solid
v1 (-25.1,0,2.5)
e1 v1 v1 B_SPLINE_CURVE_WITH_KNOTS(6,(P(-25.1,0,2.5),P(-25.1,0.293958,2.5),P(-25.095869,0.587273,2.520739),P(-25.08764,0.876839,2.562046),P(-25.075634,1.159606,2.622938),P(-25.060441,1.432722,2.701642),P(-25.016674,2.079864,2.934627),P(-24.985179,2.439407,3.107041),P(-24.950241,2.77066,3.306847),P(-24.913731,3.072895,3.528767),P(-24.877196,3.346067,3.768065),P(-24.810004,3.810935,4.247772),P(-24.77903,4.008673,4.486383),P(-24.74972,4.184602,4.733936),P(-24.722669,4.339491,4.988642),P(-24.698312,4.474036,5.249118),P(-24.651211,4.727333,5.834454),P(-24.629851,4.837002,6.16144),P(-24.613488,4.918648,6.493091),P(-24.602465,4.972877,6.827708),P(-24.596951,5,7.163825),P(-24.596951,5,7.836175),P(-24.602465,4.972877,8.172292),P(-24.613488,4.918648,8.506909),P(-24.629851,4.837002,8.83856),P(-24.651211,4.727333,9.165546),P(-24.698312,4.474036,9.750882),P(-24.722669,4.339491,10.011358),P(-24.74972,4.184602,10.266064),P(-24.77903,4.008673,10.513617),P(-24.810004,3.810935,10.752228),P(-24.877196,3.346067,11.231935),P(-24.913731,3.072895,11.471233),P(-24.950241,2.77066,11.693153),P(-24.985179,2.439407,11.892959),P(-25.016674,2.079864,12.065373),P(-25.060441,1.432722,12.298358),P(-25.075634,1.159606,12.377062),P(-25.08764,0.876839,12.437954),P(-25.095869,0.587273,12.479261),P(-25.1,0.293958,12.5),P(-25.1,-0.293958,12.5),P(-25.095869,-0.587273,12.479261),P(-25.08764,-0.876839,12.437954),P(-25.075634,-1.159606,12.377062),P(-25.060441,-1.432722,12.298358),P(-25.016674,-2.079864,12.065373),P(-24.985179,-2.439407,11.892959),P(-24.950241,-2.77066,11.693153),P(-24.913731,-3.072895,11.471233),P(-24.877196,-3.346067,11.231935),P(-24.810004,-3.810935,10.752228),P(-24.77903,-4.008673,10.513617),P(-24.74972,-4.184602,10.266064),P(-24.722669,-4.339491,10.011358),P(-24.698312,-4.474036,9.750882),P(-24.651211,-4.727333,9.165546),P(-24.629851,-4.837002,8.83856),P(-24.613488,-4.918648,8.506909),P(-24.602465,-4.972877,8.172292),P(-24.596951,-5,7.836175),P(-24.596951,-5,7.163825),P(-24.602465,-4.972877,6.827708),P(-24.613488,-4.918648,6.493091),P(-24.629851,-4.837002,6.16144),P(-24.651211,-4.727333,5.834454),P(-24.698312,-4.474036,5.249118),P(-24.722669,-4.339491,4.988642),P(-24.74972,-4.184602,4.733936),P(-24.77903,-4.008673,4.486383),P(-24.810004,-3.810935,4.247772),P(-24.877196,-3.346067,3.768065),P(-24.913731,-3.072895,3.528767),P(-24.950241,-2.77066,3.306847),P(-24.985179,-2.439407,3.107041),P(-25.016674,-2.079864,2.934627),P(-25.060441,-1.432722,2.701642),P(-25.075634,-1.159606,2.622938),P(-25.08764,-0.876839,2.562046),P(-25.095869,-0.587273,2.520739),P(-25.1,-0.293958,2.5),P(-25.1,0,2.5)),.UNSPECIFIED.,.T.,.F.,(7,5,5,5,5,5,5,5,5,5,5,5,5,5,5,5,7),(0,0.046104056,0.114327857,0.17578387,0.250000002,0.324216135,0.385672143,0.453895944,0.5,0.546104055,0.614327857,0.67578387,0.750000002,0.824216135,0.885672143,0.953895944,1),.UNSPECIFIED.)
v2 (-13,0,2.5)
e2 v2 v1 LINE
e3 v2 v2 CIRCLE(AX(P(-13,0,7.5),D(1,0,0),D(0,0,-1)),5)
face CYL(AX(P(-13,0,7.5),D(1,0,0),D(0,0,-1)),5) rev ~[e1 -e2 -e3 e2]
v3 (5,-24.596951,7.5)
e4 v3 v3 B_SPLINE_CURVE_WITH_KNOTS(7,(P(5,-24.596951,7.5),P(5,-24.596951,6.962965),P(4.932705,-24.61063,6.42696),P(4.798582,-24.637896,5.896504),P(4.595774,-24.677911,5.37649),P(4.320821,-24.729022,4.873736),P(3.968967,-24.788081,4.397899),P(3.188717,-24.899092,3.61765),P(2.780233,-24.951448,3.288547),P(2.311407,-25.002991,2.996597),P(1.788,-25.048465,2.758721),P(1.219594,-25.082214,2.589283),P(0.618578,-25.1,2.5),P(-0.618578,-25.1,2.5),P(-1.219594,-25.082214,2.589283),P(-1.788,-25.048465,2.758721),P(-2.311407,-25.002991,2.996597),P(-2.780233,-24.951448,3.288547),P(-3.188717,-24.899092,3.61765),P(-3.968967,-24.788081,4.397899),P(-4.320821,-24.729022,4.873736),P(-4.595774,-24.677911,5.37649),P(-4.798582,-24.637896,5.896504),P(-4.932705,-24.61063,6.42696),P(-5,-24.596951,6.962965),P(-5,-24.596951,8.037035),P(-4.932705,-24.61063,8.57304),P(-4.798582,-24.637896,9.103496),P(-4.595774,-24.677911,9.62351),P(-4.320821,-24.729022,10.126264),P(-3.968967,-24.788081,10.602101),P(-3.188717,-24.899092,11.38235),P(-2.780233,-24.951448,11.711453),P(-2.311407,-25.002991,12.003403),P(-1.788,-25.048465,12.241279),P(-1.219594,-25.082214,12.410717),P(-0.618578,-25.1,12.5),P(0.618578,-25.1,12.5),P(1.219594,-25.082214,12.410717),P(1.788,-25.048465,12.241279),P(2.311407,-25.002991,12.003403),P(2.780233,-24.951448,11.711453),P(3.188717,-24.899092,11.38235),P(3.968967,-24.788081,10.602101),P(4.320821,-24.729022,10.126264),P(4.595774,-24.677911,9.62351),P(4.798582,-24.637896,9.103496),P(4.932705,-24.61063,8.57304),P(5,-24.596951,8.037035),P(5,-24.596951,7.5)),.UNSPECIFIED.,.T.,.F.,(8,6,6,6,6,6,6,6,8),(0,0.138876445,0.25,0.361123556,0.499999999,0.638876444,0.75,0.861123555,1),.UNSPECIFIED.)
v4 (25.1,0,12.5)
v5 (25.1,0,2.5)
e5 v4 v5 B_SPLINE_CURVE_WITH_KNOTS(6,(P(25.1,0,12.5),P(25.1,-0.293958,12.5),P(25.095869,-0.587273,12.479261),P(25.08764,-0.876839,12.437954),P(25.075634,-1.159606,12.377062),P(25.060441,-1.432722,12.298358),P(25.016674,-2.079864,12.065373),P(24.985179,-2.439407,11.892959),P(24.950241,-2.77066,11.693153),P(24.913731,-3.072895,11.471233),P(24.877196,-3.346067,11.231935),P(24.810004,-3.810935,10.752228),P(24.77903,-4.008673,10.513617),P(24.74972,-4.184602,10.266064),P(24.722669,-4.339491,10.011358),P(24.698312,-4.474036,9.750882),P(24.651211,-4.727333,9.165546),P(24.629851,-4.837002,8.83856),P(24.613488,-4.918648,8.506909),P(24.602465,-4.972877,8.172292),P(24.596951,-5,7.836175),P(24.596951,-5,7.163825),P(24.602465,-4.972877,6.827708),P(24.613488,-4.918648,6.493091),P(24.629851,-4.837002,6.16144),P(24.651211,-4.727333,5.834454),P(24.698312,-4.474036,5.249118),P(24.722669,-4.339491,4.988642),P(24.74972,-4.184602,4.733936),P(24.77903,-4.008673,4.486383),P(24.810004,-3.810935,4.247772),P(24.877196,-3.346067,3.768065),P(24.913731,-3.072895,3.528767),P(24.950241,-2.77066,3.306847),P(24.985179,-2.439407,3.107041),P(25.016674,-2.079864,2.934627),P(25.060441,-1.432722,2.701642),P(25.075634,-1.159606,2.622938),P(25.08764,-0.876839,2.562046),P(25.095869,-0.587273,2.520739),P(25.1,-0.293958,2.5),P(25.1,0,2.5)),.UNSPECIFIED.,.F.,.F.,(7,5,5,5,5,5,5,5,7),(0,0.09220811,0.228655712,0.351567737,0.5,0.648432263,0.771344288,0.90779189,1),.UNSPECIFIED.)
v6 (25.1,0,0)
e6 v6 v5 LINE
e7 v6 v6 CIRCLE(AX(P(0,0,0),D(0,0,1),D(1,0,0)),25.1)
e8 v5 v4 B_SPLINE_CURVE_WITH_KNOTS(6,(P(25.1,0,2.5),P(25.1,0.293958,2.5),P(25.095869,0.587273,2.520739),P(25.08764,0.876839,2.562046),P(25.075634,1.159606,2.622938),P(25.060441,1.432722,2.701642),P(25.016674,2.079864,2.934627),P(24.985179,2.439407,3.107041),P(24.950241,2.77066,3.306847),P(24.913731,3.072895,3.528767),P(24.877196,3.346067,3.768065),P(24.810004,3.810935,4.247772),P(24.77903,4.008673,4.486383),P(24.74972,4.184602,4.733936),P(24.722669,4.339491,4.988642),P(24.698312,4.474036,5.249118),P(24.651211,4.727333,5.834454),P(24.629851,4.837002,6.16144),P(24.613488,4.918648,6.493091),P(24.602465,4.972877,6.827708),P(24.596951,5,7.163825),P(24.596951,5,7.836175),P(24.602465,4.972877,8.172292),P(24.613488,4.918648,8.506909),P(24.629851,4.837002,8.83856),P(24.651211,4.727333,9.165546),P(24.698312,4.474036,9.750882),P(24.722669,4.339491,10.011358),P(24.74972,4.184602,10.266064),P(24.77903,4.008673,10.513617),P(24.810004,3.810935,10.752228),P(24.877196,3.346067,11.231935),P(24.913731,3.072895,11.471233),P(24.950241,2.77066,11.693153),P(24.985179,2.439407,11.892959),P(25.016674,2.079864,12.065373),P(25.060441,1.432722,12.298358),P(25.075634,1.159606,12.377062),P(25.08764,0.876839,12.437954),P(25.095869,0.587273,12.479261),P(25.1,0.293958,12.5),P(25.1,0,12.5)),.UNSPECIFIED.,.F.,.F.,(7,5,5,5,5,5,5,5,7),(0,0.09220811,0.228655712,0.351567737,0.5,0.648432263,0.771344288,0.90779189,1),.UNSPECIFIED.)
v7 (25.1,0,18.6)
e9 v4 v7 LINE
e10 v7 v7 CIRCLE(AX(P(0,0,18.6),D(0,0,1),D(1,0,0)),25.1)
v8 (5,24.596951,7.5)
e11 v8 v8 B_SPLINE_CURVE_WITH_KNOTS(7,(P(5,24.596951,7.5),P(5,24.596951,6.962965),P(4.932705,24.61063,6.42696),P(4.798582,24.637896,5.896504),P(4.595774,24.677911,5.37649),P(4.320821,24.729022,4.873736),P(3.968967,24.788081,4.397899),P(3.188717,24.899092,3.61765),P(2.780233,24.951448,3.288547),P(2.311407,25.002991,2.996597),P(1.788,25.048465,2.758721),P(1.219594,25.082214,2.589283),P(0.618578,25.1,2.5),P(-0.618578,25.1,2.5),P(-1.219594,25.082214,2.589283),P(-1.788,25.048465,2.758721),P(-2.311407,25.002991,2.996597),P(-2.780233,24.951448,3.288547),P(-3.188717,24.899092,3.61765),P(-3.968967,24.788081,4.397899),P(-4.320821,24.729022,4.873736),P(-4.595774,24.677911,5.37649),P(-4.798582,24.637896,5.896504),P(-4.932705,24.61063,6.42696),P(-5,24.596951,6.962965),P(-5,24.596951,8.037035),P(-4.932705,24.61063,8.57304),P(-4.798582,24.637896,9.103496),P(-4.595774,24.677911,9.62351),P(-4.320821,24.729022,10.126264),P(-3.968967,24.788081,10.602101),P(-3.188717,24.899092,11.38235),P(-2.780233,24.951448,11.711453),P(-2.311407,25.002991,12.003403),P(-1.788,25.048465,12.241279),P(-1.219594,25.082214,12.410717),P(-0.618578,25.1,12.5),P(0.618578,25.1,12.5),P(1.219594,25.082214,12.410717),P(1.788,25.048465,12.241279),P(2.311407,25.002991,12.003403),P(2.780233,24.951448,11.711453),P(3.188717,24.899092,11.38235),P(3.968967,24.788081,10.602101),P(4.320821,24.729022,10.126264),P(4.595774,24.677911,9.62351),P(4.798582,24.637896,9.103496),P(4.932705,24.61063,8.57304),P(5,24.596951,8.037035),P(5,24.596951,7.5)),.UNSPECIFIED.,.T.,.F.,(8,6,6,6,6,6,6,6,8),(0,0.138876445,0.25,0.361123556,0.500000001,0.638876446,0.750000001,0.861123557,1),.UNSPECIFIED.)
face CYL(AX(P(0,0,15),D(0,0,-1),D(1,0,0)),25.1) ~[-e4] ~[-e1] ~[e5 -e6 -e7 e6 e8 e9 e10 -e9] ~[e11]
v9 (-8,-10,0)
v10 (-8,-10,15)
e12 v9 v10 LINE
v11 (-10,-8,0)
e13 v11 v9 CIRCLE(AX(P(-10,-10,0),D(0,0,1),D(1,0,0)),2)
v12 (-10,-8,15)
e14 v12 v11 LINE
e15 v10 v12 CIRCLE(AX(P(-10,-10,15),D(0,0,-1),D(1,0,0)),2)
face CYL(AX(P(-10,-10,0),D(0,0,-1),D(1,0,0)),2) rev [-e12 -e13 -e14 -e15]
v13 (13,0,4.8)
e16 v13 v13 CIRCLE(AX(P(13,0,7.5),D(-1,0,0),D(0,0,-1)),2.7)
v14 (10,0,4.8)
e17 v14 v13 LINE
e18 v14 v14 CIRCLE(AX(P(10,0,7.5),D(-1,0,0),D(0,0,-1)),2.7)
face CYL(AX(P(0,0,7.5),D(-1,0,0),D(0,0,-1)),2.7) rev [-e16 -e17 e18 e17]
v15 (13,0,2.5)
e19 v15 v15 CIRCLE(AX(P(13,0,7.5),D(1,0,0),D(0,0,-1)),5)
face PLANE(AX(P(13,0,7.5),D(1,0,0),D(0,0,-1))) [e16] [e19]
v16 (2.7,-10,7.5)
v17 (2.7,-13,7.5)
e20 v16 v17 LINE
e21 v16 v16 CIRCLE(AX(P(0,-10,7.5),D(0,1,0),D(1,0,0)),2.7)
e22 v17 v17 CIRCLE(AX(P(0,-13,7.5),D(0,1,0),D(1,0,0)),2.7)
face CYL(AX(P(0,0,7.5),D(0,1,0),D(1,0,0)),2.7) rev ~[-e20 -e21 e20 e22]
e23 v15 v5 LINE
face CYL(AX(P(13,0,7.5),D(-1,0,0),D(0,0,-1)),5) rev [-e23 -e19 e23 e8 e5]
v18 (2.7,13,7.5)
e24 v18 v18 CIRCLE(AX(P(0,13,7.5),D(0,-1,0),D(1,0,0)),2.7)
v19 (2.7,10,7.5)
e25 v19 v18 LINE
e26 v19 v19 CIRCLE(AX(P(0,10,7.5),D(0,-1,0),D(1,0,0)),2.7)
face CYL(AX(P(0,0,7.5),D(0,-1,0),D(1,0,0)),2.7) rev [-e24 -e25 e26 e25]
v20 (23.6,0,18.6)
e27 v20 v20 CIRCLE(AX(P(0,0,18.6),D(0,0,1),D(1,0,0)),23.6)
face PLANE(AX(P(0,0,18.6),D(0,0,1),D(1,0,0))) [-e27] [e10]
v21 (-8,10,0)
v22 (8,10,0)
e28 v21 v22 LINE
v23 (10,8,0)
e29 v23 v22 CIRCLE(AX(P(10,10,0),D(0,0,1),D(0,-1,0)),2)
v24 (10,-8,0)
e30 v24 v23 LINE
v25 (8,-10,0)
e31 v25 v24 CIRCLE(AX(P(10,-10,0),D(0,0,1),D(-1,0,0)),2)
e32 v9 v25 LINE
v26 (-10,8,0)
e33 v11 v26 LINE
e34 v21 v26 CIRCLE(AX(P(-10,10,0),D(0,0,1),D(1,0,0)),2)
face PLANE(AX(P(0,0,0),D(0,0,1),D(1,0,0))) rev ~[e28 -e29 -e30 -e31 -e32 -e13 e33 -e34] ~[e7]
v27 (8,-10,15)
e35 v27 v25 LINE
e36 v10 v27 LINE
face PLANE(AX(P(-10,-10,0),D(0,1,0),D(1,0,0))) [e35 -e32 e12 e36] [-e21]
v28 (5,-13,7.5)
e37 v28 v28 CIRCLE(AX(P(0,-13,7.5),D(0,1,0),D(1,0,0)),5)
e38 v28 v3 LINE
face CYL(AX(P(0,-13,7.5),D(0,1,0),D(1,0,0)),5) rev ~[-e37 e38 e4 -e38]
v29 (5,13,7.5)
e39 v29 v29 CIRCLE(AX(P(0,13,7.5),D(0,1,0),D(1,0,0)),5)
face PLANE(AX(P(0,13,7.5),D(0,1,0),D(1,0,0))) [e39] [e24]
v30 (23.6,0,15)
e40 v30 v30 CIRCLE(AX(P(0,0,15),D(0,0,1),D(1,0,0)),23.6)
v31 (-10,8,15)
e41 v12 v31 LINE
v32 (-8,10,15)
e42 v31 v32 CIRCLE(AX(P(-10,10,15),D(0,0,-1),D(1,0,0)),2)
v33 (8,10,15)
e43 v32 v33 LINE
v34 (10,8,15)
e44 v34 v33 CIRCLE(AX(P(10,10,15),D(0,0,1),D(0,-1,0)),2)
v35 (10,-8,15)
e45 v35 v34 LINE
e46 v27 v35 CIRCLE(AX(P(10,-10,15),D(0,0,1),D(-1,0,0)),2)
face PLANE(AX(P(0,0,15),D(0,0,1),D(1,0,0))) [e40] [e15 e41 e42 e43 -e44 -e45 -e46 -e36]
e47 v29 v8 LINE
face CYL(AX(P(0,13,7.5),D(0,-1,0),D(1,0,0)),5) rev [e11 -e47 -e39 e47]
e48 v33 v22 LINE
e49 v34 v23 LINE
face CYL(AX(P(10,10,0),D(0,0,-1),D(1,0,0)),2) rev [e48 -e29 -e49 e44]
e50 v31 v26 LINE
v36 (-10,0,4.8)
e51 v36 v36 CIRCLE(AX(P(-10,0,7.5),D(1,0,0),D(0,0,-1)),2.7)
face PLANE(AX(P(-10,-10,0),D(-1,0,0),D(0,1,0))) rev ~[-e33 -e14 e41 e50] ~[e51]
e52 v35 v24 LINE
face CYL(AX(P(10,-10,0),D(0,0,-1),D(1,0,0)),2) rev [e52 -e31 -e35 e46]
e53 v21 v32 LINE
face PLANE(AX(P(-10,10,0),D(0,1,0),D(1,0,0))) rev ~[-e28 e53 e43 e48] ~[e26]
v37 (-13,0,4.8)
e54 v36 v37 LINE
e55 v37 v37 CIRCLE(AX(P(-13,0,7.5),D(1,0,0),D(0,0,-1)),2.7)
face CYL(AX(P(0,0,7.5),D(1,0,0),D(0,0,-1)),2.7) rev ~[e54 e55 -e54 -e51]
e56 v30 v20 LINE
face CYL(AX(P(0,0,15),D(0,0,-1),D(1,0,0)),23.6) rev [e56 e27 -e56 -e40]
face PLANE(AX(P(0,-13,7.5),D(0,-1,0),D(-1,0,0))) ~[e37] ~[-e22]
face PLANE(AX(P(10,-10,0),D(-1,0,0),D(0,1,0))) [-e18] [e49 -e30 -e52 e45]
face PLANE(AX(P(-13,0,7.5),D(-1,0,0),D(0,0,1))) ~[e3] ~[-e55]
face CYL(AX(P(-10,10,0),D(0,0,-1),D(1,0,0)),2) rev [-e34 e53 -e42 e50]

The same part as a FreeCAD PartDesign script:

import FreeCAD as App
import Part
import Sketcher
from FreeCAD import Vector


def add_polygon(sketch, points):
    """Adds a closed chain of lines whose ends are joined by coincident constraints."""
    first, n = sketch.GeometryCount, len(points)
    for a, b in zip(points, points[1:] + points[:1]):
        sketch.addGeometry(Part.LineSegment(App.Vector(*a, 0), App.Vector(*b, 0)), False)
    for i in range(n):
        sketch.addConstraint(Sketcher.Constraint("Coincident", first + i, 2, first + (i + 1) % n, 1))

doc = App.newDocument("Part")
body = doc.addObject("PartDesign::Body", "Body")

# Sketch on XY plane
sketch1 = body.newObject("Sketcher::SketchObject", "Sketch")
sketch1.AttachmentSupport = (doc.getObject("XY_Plane"), [""])
sketch1.MapMode = "FlatFace"
sketch1.addGeometry(Part.Circle(Vector(0, 0, 0), Vector(0, 0, 1), 25), False)  # 0
add_polygon(sketch1, [(10, -10), (-10, -10), (-10, 10), (10, 10)])  # lines 1-4
sketch1.addConstraint([
    Sketcher.Constraint("Horizontal", 1),
    Sketcher.Constraint("Vertical", 2),
    Sketcher.Constraint("Horizontal", 3),
    Sketcher.Constraint("Vertical", 4),
    Sketcher.Constraint("Coincident", 0, 3, -1, 1),
    Sketcher.Constraint("Symmetric", 1, 2, 3, 2, -1, 1),
    Sketcher.Constraint("Equal", 3, 2),
    Sketcher.Constraint("Diameter", 0, 50.2),
    Sketcher.Constraint("DistanceX", 1, 2, 1, 1, 20.0),
])
pad1 = body.newObject("PartDesign::Pad", "Pad")
pad1.Profile = sketch1
pad1.Length = 15

# Sketch on XY plane
sketch2 = body.newObject("Sketcher::SketchObject", "Sketch001")
sketch2.AttachmentSupport = (doc.getObject("XY_Plane"), [""])
sketch2.MapMode = "FlatFace"
sketch2.AttachmentOffset = App.Placement(Vector(0, 0, 15), App.Rotation())
sketch2.addGeometry([
    Part.Circle(Vector(0, 0, 0), Vector(0, 0, 1), 25),
    Part.Circle(Vector(0, 0, 0), Vector(0, 0, 1), 24),
], False)
sketch2.addConstraint([
    Sketcher.Constraint("Coincident", 0, 3, -1, 1),
    Sketcher.Constraint("Coincident", 1, 3, -1, 1),
    Sketcher.Constraint("Diameter", 0, 50.2),
    Sketcher.Constraint("Diameter", 1, 47.2),
])
pad2 = body.newObject("PartDesign::Pad", "Pad001")
pad2.Profile = sketch2
pad2.Length = 3.6

# Sketch on XY plane
sketch3 = body.newObject("Sketcher::SketchObject", "Sketch002")
sketch3.AttachmentSupport = (doc.getObject("XY_Plane"), [""])
sketch3.MapMode = "FlatFace"
sketch3.addGeometry([
    Part.Circle(Vector(-10, 10, 0), Vector(0, 0, 1), 2),
    Part.Circle(Vector(10, 10, 0), Vector(0, 0, 1), 2),
    Part.Circle(Vector(10, -10, 0), Vector(0, 0, 1), 2),
    Part.Circle(Vector(-10, -10, 0), Vector(0, 0, 1), 2),
], False)
sketch3.addConstraint([
    Sketcher.Constraint("Equal", 0, 1),
    Sketcher.Constraint("Equal", 1, 2),
    Sketcher.Constraint("Equal", 2, 3),
    Sketcher.Constraint("Symmetric", 0, 3, 2, 3, -1, 1),
    Sketcher.Constraint("Symmetric", 1, 3, 3, 3, -1, 1),
    Sketcher.Constraint("Symmetric", 0, 3, 1, 3, -2),
    Sketcher.Constraint("Diameter", 0, 4.0),
    Sketcher.Constraint("DistanceX", 0, 3, -1, 1, 10.0),
    Sketcher.Constraint("DistanceY", -1, 1, 0, 3, 10.0),
])
pocket1 = body.newObject("PartDesign::Pocket", "Pocket")
pocket1.Profile = sketch3
pocket1.Type = "ThroughAll"
pocket1.Reversed = True

# Sketch on XZ plane
sketch4 = body.newObject("Sketcher::SketchObject", "Sketch003")
sketch4.AttachmentSupport = (doc.getObject("XZ_Plane"), [""])
sketch4.MapMode = "FlatFace"
sketch4.addGeometry(Part.Circle(Vector(0, 7.5, 0), Vector(0, 0, 1), 2.7), False)
sketch4.addConstraint([
    Sketcher.Constraint("PointOnObject", 0, 3, -2),
    Sketcher.Constraint("Diameter", 0, 5.4),
    Sketcher.Constraint("DistanceY", -1, 1, 0, 3, 7.5),
])
pocket2 = body.newObject("PartDesign::Pocket", "Pocket001")
pocket2.Profile = sketch4
pocket2.Type = "ThroughAll"
pocket2.Midplane = True

# Sketch on YZ plane
sketch5 = body.newObject("Sketcher::SketchObject", "Sketch004")
sketch5.AttachmentSupport = (doc.getObject("YZ_Plane"), [""])
sketch5.MapMode = "FlatFace"
sketch5.addGeometry(Part.Circle(Vector(0, 7.5, 0), Vector(0, 0, 1), 2.7), False)
sketch5.addConstraint([
    Sketcher.Constraint("PointOnObject", 0, 3, -2),
    Sketcher.Constraint("Diameter", 0, 5.4),
    Sketcher.Constraint("DistanceY", -1, 1, 0, 3, 7.5),
])
pocket3 = body.newObject("PartDesign::Pocket", "Pocket002")
pocket3.Profile = sketch5
pocket3.Type = "ThroughAll"
pocket3.Midplane = True

# Sketch on XZ plane
sketch6 = body.newObject("Sketcher::SketchObject", "Sketch005")
sketch6.AttachmentSupport = (doc.getObject("XZ_Plane"), [""])
sketch6.MapMode = "FlatFace"
sketch6.AttachmentOffset = App.Placement(Vector(0, 0, -13), App.Rotation())
sketch6.addGeometry(Part.Circle(Vector(0, 8, 0), Vector(0, 0, 1), 5), False)
sketch6.addConstraint([
    Sketcher.Constraint("PointOnObject", 0, 3, -2),
    Sketcher.Constraint("Diameter", 0, 10.0),
    Sketcher.Constraint("DistanceY", -1, 1, 0, 3, 7.5),
])
pocket4 = body.newObject("PartDesign::Pocket", "Pocket003")
pocket4.Profile = sketch6
pocket4.Type = "ThroughAll"
doc.recompute()

mirrored = body.newObject("PartDesign::Mirrored", "Mirrored")
mirrored.Originals = [pocket4]
mirrored.MirrorPlane = (doc.getObject("XZ_Plane"), [""])
body.Tip = mirrored

# Sketch on YZ plane
sketch7 = body.newObject("Sketcher::SketchObject", "Sketch006")
sketch7.AttachmentSupport = (doc.getObject("YZ_Plane"), [""])
sketch7.MapMode = "FlatFace"
sketch7.AttachmentOffset = App.Placement(Vector(0, 0, 13), App.Rotation())
sketch7.addGeometry(Part.Circle(Vector(0, 8, 0), Vector(0, 0, 1), 5), False)
sketch7.addConstraint([
    Sketcher.Constraint("PointOnObject", 0, 3, -2),
    Sketcher.Constraint("Diameter", 0, 10.0),
    Sketcher.Constraint("DistanceY", -1, 1, 0, 3, 7.5),
])
pocket5 = body.newObject("PartDesign::Pocket", "Pocket004")
pocket5.Profile = sketch7
pocket5.Type = "ThroughAll"
pocket5.Reversed = True
doc.recompute()

mirrored2 = body.newObject("PartDesign::Mirrored", "Mirrored001")
mirrored2.Originals = [pocket5]
mirrored2.MirrorPlane = (doc.getObject("YZ_Plane"), [""])
body.Tip = mirrored2

doc.recompute()
